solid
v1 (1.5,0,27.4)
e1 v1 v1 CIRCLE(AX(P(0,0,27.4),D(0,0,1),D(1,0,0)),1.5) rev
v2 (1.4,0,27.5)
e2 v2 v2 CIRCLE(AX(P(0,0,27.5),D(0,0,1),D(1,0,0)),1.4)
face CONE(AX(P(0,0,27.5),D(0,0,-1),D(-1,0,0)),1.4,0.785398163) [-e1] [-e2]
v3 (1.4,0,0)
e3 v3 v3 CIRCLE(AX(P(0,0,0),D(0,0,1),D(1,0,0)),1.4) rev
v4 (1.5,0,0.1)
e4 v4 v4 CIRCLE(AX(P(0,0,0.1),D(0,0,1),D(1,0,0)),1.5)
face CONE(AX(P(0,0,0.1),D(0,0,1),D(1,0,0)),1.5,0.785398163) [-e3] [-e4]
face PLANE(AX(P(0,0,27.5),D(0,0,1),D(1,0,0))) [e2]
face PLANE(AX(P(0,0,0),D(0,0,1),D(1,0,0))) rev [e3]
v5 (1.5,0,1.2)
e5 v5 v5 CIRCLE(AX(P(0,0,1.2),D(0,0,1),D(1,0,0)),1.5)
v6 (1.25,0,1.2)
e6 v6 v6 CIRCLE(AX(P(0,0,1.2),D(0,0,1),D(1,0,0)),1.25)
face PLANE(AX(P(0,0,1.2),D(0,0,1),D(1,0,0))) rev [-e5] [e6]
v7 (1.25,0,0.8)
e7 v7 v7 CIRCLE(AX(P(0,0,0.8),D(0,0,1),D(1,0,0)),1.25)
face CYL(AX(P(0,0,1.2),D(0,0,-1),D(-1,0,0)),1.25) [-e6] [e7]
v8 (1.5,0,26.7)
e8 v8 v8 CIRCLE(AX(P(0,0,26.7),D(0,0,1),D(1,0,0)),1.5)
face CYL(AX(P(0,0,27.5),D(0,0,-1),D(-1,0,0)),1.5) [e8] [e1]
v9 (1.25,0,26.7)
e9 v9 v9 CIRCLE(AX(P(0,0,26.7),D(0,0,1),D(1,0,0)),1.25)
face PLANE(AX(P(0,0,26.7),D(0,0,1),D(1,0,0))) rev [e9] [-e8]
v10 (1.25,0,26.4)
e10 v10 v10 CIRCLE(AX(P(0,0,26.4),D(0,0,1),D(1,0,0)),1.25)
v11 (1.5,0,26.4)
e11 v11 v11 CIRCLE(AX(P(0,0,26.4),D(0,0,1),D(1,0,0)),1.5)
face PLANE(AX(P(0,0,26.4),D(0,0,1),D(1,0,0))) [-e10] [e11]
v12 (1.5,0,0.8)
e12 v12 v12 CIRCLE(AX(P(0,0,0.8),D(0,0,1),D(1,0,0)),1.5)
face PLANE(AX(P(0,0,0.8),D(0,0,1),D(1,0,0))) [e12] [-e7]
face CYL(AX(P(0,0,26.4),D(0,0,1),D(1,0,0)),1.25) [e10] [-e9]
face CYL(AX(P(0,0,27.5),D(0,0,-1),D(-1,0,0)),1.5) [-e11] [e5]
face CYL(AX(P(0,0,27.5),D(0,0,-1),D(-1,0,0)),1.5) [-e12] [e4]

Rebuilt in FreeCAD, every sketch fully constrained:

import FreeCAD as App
import Part
import Sketcher

V = App.Vector
Q = App.Units.Quantity


def edges_at(feature, points):
    """Names of the edges that pass closest to the given points."""
    edges = feature.Shape.Edges
    near = lambda p: min(range(len(edges)), key=lambda i: edges[i].distToShape(Part.Vertex(*p))[0])
    return sorted({f"Edge{near(p) + 1}" for p in points})

doc = App.newDocument("Part")
params = doc.addObject("Spreadsheet::Sheet", "Params")
for row, (alias, value) in enumerate([
    ("sketch1_diameter", "3 mm"),
    ("pad1_length", "27.5 mm"),
    ("sketch2_diameter", "3 mm"),
    ("sketch2_diameter2", "2.5 mm"),
    ("pocket1_length", "0.4 mm"),
    ("sketch3_diameter", "3 mm"),
    ("sketch3_diameter2", "2.5 mm"),
    ("pocket2_length", "0.3 mm"),
    ("chamfer_size", "0.1 mm"),
], start=1):
    params.set(f"A{row}", alias)
    params.set(f"B{row}", "=" + value)
    params.setAlias(f"B{row}", alias)

body = doc.addObject("PartDesign::Body", "Body")

# Sketch on XY plane
sketch1 = body.newObject("Sketcher::SketchObject", "Sketch")
sketch1.AttachmentSupport = (doc.getObject("XY_Plane"), [""])
sketch1.MapMode = "FlatFace"
sketch1.addGeometry(Part.Circle(V(0, 0, 0), V(0, 0, 1), 1.5), False)
sketch1.addConstraint(Sketcher.Constraint("Coincident", 0, 3, -1, 1))
sketch1.addConstraint(Sketcher.Constraint("Diameter", 0, Q("3 mm")))
sketch1.setExpression("Constraints[1]", "Params.sketch1_diameter")
pad1 = body.newObject("PartDesign::Pad", "Pad")
pad1.Profile = sketch1
pad1.setExpression("Length", "Params.pad1_length")

# Sketch on XY plane
sketch2 = body.newObject("Sketcher::SketchObject", "Sketch001")
sketch2.AttachmentSupport = (doc.getObject("XY_Plane"), [""])
sketch2.MapMode = "FlatFace"
sketch2.AttachmentOffset = App.Placement(V(0, 0, 0.8), App.Rotation())
sketch2.addGeometry(Part.Circle(V(0, 0, 0), V(0, 0, 1), 1.5), False)
sketch2.addGeometry(Part.Circle(V(0, 0, 0), V(0, 0, 1), 1.2), False)
sketch2.addConstraint(Sketcher.Constraint("Coincident", 0, 3, -1, 1))
sketch2.addConstraint(Sketcher.Constraint("Coincident", 1, 3, -1, 1))
sketch2.addConstraint(Sketcher.Constraint("Diameter", 0, Q("3 mm")))
sketch2.addConstraint(Sketcher.Constraint("Diameter", 1, Q("2.5 mm")))
sketch2.setExpression("Constraints[2]", "Params.sketch2_diameter")
sketch2.setExpression("Constraints[3]", "Params.sketch2_diameter2")
pocket1 = body.newObject("PartDesign::Pocket", "Pocket")
pocket1.Profile = sketch2
pocket1.setExpression("Length", "Params.pocket1_length")
pocket1.Reversed = True

# Sketch on XY plane
sketch3 = body.newObject("Sketcher::SketchObject", "Sketch002")
sketch3.AttachmentSupport = (doc.getObject("XY_Plane"), [""])
sketch3.MapMode = "FlatFace"
sketch3.AttachmentOffset = App.Placement(V(0, 0, 26.7), App.Rotation())
sketch3.addGeometry(Part.Circle(V(0, 0, 0), V(0, 0, 1), 1.5), False)
sketch3.addGeometry(Part.Circle(V(0, 0, 0), V(0, 0, 1), 1.2), False)
sketch3.addConstraint(Sketcher.Constraint("Coincident", 0, 3, -1, 1))
sketch3.addConstraint(Sketcher.Constraint("Coincident", 1, 3, -1, 1))
sketch3.addConstraint(Sketcher.Constraint("Diameter", 0, Q("3 mm")))
sketch3.addConstraint(Sketcher.Constraint("Diameter", 1, Q("2.5 mm")))
sketch3.setExpression("Constraints[2]", "Params.sketch3_diameter")
sketch3.setExpression("Constraints[3]", "Params.sketch3_diameter2")
pocket2 = body.newObject("PartDesign::Pocket", "Pocket001")
pocket2.Profile = sketch3
pocket2.setExpression("Length", "Params.pocket2_length")
doc.recompute()

chamfer = body.newObject("PartDesign::Chamfer", "Chamfer")
chamfer.Base = (pocket2, edges_at(pocket2, [(-1.5, 0, 0), (-1.5, 0, 27.5)]))
chamfer.setExpression("Size", "Params.chamfer_size")

doc.recompute()
